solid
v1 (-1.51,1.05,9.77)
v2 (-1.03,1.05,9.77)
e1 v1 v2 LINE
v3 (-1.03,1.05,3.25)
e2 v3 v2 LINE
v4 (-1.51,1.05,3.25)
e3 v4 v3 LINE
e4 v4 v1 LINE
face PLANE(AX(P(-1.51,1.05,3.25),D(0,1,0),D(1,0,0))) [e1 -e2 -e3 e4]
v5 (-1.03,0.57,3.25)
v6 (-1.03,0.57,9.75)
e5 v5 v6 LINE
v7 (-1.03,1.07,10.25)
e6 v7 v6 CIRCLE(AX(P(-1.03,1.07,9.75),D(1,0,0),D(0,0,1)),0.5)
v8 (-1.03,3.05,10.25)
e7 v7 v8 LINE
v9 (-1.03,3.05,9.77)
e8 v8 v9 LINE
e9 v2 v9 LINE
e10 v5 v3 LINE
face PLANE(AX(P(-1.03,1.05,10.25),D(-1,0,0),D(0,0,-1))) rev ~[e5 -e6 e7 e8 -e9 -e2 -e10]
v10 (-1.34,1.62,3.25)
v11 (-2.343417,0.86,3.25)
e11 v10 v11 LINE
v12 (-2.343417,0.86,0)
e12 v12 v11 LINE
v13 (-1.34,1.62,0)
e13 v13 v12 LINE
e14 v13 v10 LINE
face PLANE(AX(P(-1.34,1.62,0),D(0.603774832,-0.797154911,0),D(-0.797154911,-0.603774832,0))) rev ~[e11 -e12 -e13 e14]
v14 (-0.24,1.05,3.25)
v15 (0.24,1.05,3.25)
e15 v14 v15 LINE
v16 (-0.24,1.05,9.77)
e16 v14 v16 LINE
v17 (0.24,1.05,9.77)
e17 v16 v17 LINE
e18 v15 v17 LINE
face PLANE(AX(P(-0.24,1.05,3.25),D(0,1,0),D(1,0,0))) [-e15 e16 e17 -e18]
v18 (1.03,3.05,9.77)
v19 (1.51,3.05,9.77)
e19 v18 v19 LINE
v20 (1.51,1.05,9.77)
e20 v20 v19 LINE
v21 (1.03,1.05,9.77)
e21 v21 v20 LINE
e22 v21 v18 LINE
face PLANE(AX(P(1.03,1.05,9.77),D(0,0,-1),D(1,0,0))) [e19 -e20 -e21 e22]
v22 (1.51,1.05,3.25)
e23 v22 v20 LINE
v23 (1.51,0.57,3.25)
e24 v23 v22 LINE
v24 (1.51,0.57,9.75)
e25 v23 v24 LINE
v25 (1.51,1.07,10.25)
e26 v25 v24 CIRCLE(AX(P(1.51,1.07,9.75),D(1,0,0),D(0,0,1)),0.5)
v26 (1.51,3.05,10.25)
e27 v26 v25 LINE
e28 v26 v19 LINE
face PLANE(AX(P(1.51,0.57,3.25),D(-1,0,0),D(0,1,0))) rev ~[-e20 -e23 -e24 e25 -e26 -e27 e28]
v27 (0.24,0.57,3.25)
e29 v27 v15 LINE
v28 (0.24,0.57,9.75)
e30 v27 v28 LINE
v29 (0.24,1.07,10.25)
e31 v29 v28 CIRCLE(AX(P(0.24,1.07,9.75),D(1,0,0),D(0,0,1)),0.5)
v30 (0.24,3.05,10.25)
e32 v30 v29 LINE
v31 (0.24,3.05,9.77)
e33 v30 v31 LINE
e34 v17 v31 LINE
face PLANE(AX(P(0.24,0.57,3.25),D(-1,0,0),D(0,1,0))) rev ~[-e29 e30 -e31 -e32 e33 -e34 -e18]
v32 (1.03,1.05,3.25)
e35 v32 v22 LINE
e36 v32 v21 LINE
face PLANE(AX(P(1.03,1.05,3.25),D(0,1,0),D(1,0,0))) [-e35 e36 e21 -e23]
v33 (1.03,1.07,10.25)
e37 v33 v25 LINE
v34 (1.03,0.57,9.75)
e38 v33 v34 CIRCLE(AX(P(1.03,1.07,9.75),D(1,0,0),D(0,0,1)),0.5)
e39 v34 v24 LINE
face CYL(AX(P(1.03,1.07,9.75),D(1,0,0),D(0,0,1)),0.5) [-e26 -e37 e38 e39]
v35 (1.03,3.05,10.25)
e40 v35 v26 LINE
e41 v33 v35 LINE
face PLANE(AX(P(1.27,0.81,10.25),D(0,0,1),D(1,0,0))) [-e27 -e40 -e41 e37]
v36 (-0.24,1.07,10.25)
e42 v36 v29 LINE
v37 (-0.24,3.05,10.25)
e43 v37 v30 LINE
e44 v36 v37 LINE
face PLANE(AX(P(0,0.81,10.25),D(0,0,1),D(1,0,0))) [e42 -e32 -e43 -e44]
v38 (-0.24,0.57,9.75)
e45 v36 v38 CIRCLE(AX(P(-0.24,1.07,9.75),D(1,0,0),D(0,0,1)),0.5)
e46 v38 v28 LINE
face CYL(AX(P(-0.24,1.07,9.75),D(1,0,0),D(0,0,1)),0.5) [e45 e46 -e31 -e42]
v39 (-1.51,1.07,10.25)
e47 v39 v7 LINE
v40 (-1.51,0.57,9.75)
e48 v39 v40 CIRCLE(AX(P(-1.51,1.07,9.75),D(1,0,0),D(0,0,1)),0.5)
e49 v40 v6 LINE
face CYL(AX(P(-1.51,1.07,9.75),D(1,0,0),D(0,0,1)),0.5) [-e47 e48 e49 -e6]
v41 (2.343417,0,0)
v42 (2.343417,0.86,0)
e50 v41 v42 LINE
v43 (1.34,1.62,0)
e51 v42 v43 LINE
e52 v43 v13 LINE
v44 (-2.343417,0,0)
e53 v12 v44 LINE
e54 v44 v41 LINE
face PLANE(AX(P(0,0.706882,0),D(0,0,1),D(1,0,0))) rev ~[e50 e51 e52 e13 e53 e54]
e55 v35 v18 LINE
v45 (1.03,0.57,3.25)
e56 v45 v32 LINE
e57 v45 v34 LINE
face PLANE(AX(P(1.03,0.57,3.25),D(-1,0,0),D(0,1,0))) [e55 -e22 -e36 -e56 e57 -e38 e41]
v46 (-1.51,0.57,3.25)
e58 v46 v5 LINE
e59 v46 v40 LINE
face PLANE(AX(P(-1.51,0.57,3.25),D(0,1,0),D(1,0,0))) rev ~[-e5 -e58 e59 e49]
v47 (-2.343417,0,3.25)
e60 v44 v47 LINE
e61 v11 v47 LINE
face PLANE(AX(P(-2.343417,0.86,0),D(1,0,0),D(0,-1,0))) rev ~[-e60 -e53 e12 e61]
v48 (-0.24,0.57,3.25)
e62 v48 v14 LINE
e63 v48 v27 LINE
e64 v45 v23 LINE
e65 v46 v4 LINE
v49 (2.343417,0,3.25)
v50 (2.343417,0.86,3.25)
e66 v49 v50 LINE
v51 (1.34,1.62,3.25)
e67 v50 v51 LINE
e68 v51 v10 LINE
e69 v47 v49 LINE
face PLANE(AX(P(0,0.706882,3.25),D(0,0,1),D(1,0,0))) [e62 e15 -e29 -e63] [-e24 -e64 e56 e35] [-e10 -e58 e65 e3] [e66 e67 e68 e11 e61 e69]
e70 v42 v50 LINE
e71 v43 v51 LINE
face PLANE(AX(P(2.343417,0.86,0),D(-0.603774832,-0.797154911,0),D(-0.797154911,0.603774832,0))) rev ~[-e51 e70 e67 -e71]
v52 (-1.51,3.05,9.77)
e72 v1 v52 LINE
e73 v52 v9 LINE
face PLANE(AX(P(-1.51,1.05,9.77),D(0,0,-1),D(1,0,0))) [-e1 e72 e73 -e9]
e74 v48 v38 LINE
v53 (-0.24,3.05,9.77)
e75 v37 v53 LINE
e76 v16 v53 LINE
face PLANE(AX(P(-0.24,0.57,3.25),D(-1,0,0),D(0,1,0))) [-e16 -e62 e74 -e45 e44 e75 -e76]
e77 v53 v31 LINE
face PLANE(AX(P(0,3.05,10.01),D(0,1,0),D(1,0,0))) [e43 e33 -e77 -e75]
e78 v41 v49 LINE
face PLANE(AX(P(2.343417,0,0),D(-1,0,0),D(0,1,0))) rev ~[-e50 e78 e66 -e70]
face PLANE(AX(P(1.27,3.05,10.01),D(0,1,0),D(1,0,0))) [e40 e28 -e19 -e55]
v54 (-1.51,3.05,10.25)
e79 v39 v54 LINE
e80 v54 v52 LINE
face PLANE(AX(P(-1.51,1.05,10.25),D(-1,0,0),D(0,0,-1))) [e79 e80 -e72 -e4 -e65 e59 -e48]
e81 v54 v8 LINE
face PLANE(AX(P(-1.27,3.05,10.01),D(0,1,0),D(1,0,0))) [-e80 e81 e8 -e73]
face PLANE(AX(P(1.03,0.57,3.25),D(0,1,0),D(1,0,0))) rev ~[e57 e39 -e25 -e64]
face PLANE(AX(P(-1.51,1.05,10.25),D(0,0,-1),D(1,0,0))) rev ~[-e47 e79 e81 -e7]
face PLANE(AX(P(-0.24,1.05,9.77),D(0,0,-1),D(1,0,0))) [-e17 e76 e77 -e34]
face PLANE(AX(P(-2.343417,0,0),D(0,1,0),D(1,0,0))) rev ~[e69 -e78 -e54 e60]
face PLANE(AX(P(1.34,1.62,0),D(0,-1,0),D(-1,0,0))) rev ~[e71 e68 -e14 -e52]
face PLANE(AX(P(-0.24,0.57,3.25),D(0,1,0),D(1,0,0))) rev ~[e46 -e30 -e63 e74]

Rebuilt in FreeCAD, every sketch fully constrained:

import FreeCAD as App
import Part
import Sketcher

V = App.Vector
Q = App.Units.Quantity


def edges_at(feature, points):
    """Names of the edges that pass closest to the given points."""
    edges = feature.Shape.Edges
    near = lambda p: min(range(len(edges)), key=lambda i: edges[i].distToShape(Part.Vertex(*p))[0])
    return sorted({f"Edge{near(p) + 1}" for p in points})


def add_polygon(sketch, points):
    """Adds a closed chain of lines whose ends are joined by coincident constraints."""
    first, n = sketch.GeometryCount, len(points)
    for a, b in zip(points, points[1:] + points[:1]):
        sketch.addGeometry(Part.LineSegment(App.Vector(*a, 0), App.Vector(*b, 0)), False)
    for i in range(n):
        sketch.addConstraint(Sketcher.Constraint("Coincident", first + i, 2, first + (i + 1) % n, 1))

doc = App.newDocument("Part")
params = doc.addObject("Spreadsheet::Sheet", "Params")
for row, (alias, value) in enumerate([
    ("sketch1_width", "2.68 mm"),
    ("sketch1_height", "0.86 mm"),
    ("pad1_length", "3.25 mm"),
    ("sketch2_width", "0.48 mm"),
    ("pad2_length", "7 mm"),
    ("sketch3_width", "0.48 mm"),
    ("pad3_length", "2 mm"),
    ("fillet_radius", "0.5 mm"),
], start=1):
    params.set(f"A{row}", alias)
    params.set(f"B{row}", "=" + value)
    params.setAlias(f"B{row}", alias)

body = doc.addObject("PartDesign::Body", "Body")

# Sketch on XY plane
sketch1 = body.newObject("Sketcher::SketchObject", "Sketch")
sketch1.AttachmentSupport = (doc.getObject("XY_Plane"), [""])
sketch1.MapMode = "FlatFace"
add_polygon(sketch1, [(-2.3, 0), (2.3, 0), (2.3, 0.9), (1.3, 1.6), (-1.3, 1.6), (-2.3, 0.9)])  # lines 0-5
sketch1.addConstraint([
    Sketcher.Constraint("Horizontal", 0),
    Sketcher.Constraint("Vertical", 1),
    Sketcher.Constraint("Horizontal", 3),
    Sketcher.Constraint("Vertical", 5),
    Sketcher.Constraint("Symmetric", 0, 2, 5, 2, -1, 1),
    Sketcher.Constraint("Horizontal", 1, 2, 4, 2),
    Sketcher.Constraint("Equal", 2, 4),
    Sketcher.Constraint("DistanceX", 3, 2, 3, 1, Q("2.68 mm")),
    Sketcher.Constraint("DistanceY", 1, 1, 1, 2, Q("0.86 mm")),
    Sketcher.Constraint("DistanceY", -1, 1, 2, 2, Q("1.62 mm")),
    Sketcher.Constraint("DistanceX", 0, 1, 0, 2, Q("4.686833 mm")),
])
sketch1.setExpression("Constraints[13]", "Params.sketch1_width")
sketch1.setExpression("Constraints[14]", "Params.sketch1_height")
pad1 = body.newObject("PartDesign::Pad", "Pad")
pad1.Profile = sketch1
pad1.setExpression("Length", "Params.pad1_length")

# Sketch on XY plane
sketch2 = body.newObject("Sketcher::SketchObject", "Sketch001")
sketch2.AttachmentSupport = (doc.getObject("XY_Plane"), [""])
sketch2.MapMode = "FlatFace"
sketch2.AttachmentOffset = App.Placement(V(0, 0, 3.25), App.Rotation())
add_polygon(sketch2, [(-0.24, 1.05), (-0.24, 0.57), (0.24, 0.57), (0.24, 1.05)])  # lines 0-3
add_polygon(sketch2, [(1.03, 1.05), (1.03, 0.57), (1.51, 0.57), (1.51, 1.05)])  # lines 4-7
add_polygon(sketch2, [(-1.51, 1.05), (-1.51, 0.57), (-1.03, 0.57), (-1.03, 1.05)])  # lines 8-11
sketch2.addConstraint([
    Sketcher.Constraint("Vertical", 0),
    Sketcher.Constraint("Horizontal", 1),
    Sketcher.Constraint("Vertical", 2),
    Sketcher.Constraint("Horizontal", 3),
    Sketcher.Constraint("Vertical", 4),
    Sketcher.Constraint("Horizontal", 5),
    Sketcher.Constraint("Vertical", 6),
    Sketcher.Constraint("Horizontal", 7),
    Sketcher.Constraint("Vertical", 8),
    Sketcher.Constraint("Horizontal", 9),
    Sketcher.Constraint("Vertical", 10),
    Sketcher.Constraint("Horizontal", 11),
    Sketcher.Constraint("Symmetric", 5, 2, 8, 2, -2),
    Sketcher.Constraint("Symmetric", 7, 2, 10, 2, -2),
    Sketcher.Constraint("Horizontal", 1, 2, 4, 2),
    Sketcher.Constraint("Horizontal", 3, 2, 6, 2),
    Sketcher.Constraint("Equal", 3, 5),
    Sketcher.Constraint("Equal", 11, 0),
    Sketcher.Constraint("DistanceX", 1, 1, 1, 2, Q("0.48 mm")),
    Sketcher.Constraint("DistanceX", 0, 2, -1, 1, Q("0.24 mm")),
    Sketcher.Constraint("DistanceY", -1, 1, 0, 2, Q("0.57 mm")),
    Sketcher.Constraint("DistanceX", -1, 1, 4, 2, Q("1.03 mm")),
])
sketch2.setExpression("Constraints[30]", "Params.sketch2_width")
pad2 = body.newObject("PartDesign::Pad", "Pad001")
pad2.Profile = sketch2
pad2.setExpression("Length", "Params.pad2_length")

# Sketch on XZ plane
sketch3 = body.newObject("Sketcher::SketchObject", "Sketch002")
sketch3.AttachmentSupport = (doc.getObject("XZ_Plane"), [""])
sketch3.MapMode = "FlatFace"
sketch3.AttachmentOffset = App.Placement(V(0, 0, -1.05), App.Rotation())
add_polygon(sketch3, [(-1.51, 9.77), (-1.51, 10.25), (-1.03, 10.25), (-1.03, 9.77)])  # lines 0-3
add_polygon(sketch3, [(-0.24, 9.77), (-0.24, 10.25), (0.24, 10.25), (0.24, 9.77)])  # lines 4-7
add_polygon(sketch3, [(1.03, 9.77), (1.03, 10.25), (1.51, 10.25), (1.51, 9.77)])  # lines 8-11
sketch3.addConstraint([
    Sketcher.Constraint("Vertical", 0),
    Sketcher.Constraint("Horizontal", 1),
    Sketcher.Constraint("Vertical", 2),
    Sketcher.Constraint("Horizontal", 3),
    Sketcher.Constraint("Vertical", 4),
    Sketcher.Constraint("Horizontal", 5),
    Sketcher.Constraint("Vertical", 6),
    Sketcher.Constraint("Horizontal", 7),
    Sketcher.Constraint("Vertical", 8),
    Sketcher.Constraint("Horizontal", 9),
    Sketcher.Constraint("Vertical", 10),
    Sketcher.Constraint("Horizontal", 11),
    Sketcher.Constraint("Symmetric", 1, 2, 8, 2, -2),
    Sketcher.Constraint("Symmetric", 3, 2, 10, 2, -2),
    Sketcher.Constraint("Horizontal", 1, 2, 4, 2),
    Sketcher.Constraint("Horizontal", 3, 2, 6, 2),
    Sketcher.Constraint("Equal", 3, 5),
    Sketcher.Constraint("Equal", 11, 0),
    Sketcher.Constraint("DistanceX", 1, 1, 1, 2, Q("0.48 mm")),
    Sketcher.Constraint("DistanceX", 0, 2, -1, 1, Q("1.51 mm")),
    Sketcher.Constraint("DistanceY", -1, 1, 0, 2, Q("10.25 mm")),
    Sketcher.Constraint("DistanceX", 4, 2, -1, 1, Q("0.24 mm")),
])
sketch3.setExpression("Constraints[30]", "Params.sketch3_width")
pad3 = body.newObject("PartDesign::Pad", "Pad002")
pad3.Profile = sketch3
pad3.setExpression("Length", "Params.pad3_length")
pad3.Reversed = True
doc.recompute()

fillet = body.newObject("PartDesign::Fillet", "Fillet")
fillet.Base = (pad3, edges_at(pad3, [(0, 0.57, 10.25), (1.27, 0.57, 10.25), (-1.27, 0.57, 10.25)]))
fillet.setExpression("Radius", "Params.fillet_radius")

doc.recompute()
